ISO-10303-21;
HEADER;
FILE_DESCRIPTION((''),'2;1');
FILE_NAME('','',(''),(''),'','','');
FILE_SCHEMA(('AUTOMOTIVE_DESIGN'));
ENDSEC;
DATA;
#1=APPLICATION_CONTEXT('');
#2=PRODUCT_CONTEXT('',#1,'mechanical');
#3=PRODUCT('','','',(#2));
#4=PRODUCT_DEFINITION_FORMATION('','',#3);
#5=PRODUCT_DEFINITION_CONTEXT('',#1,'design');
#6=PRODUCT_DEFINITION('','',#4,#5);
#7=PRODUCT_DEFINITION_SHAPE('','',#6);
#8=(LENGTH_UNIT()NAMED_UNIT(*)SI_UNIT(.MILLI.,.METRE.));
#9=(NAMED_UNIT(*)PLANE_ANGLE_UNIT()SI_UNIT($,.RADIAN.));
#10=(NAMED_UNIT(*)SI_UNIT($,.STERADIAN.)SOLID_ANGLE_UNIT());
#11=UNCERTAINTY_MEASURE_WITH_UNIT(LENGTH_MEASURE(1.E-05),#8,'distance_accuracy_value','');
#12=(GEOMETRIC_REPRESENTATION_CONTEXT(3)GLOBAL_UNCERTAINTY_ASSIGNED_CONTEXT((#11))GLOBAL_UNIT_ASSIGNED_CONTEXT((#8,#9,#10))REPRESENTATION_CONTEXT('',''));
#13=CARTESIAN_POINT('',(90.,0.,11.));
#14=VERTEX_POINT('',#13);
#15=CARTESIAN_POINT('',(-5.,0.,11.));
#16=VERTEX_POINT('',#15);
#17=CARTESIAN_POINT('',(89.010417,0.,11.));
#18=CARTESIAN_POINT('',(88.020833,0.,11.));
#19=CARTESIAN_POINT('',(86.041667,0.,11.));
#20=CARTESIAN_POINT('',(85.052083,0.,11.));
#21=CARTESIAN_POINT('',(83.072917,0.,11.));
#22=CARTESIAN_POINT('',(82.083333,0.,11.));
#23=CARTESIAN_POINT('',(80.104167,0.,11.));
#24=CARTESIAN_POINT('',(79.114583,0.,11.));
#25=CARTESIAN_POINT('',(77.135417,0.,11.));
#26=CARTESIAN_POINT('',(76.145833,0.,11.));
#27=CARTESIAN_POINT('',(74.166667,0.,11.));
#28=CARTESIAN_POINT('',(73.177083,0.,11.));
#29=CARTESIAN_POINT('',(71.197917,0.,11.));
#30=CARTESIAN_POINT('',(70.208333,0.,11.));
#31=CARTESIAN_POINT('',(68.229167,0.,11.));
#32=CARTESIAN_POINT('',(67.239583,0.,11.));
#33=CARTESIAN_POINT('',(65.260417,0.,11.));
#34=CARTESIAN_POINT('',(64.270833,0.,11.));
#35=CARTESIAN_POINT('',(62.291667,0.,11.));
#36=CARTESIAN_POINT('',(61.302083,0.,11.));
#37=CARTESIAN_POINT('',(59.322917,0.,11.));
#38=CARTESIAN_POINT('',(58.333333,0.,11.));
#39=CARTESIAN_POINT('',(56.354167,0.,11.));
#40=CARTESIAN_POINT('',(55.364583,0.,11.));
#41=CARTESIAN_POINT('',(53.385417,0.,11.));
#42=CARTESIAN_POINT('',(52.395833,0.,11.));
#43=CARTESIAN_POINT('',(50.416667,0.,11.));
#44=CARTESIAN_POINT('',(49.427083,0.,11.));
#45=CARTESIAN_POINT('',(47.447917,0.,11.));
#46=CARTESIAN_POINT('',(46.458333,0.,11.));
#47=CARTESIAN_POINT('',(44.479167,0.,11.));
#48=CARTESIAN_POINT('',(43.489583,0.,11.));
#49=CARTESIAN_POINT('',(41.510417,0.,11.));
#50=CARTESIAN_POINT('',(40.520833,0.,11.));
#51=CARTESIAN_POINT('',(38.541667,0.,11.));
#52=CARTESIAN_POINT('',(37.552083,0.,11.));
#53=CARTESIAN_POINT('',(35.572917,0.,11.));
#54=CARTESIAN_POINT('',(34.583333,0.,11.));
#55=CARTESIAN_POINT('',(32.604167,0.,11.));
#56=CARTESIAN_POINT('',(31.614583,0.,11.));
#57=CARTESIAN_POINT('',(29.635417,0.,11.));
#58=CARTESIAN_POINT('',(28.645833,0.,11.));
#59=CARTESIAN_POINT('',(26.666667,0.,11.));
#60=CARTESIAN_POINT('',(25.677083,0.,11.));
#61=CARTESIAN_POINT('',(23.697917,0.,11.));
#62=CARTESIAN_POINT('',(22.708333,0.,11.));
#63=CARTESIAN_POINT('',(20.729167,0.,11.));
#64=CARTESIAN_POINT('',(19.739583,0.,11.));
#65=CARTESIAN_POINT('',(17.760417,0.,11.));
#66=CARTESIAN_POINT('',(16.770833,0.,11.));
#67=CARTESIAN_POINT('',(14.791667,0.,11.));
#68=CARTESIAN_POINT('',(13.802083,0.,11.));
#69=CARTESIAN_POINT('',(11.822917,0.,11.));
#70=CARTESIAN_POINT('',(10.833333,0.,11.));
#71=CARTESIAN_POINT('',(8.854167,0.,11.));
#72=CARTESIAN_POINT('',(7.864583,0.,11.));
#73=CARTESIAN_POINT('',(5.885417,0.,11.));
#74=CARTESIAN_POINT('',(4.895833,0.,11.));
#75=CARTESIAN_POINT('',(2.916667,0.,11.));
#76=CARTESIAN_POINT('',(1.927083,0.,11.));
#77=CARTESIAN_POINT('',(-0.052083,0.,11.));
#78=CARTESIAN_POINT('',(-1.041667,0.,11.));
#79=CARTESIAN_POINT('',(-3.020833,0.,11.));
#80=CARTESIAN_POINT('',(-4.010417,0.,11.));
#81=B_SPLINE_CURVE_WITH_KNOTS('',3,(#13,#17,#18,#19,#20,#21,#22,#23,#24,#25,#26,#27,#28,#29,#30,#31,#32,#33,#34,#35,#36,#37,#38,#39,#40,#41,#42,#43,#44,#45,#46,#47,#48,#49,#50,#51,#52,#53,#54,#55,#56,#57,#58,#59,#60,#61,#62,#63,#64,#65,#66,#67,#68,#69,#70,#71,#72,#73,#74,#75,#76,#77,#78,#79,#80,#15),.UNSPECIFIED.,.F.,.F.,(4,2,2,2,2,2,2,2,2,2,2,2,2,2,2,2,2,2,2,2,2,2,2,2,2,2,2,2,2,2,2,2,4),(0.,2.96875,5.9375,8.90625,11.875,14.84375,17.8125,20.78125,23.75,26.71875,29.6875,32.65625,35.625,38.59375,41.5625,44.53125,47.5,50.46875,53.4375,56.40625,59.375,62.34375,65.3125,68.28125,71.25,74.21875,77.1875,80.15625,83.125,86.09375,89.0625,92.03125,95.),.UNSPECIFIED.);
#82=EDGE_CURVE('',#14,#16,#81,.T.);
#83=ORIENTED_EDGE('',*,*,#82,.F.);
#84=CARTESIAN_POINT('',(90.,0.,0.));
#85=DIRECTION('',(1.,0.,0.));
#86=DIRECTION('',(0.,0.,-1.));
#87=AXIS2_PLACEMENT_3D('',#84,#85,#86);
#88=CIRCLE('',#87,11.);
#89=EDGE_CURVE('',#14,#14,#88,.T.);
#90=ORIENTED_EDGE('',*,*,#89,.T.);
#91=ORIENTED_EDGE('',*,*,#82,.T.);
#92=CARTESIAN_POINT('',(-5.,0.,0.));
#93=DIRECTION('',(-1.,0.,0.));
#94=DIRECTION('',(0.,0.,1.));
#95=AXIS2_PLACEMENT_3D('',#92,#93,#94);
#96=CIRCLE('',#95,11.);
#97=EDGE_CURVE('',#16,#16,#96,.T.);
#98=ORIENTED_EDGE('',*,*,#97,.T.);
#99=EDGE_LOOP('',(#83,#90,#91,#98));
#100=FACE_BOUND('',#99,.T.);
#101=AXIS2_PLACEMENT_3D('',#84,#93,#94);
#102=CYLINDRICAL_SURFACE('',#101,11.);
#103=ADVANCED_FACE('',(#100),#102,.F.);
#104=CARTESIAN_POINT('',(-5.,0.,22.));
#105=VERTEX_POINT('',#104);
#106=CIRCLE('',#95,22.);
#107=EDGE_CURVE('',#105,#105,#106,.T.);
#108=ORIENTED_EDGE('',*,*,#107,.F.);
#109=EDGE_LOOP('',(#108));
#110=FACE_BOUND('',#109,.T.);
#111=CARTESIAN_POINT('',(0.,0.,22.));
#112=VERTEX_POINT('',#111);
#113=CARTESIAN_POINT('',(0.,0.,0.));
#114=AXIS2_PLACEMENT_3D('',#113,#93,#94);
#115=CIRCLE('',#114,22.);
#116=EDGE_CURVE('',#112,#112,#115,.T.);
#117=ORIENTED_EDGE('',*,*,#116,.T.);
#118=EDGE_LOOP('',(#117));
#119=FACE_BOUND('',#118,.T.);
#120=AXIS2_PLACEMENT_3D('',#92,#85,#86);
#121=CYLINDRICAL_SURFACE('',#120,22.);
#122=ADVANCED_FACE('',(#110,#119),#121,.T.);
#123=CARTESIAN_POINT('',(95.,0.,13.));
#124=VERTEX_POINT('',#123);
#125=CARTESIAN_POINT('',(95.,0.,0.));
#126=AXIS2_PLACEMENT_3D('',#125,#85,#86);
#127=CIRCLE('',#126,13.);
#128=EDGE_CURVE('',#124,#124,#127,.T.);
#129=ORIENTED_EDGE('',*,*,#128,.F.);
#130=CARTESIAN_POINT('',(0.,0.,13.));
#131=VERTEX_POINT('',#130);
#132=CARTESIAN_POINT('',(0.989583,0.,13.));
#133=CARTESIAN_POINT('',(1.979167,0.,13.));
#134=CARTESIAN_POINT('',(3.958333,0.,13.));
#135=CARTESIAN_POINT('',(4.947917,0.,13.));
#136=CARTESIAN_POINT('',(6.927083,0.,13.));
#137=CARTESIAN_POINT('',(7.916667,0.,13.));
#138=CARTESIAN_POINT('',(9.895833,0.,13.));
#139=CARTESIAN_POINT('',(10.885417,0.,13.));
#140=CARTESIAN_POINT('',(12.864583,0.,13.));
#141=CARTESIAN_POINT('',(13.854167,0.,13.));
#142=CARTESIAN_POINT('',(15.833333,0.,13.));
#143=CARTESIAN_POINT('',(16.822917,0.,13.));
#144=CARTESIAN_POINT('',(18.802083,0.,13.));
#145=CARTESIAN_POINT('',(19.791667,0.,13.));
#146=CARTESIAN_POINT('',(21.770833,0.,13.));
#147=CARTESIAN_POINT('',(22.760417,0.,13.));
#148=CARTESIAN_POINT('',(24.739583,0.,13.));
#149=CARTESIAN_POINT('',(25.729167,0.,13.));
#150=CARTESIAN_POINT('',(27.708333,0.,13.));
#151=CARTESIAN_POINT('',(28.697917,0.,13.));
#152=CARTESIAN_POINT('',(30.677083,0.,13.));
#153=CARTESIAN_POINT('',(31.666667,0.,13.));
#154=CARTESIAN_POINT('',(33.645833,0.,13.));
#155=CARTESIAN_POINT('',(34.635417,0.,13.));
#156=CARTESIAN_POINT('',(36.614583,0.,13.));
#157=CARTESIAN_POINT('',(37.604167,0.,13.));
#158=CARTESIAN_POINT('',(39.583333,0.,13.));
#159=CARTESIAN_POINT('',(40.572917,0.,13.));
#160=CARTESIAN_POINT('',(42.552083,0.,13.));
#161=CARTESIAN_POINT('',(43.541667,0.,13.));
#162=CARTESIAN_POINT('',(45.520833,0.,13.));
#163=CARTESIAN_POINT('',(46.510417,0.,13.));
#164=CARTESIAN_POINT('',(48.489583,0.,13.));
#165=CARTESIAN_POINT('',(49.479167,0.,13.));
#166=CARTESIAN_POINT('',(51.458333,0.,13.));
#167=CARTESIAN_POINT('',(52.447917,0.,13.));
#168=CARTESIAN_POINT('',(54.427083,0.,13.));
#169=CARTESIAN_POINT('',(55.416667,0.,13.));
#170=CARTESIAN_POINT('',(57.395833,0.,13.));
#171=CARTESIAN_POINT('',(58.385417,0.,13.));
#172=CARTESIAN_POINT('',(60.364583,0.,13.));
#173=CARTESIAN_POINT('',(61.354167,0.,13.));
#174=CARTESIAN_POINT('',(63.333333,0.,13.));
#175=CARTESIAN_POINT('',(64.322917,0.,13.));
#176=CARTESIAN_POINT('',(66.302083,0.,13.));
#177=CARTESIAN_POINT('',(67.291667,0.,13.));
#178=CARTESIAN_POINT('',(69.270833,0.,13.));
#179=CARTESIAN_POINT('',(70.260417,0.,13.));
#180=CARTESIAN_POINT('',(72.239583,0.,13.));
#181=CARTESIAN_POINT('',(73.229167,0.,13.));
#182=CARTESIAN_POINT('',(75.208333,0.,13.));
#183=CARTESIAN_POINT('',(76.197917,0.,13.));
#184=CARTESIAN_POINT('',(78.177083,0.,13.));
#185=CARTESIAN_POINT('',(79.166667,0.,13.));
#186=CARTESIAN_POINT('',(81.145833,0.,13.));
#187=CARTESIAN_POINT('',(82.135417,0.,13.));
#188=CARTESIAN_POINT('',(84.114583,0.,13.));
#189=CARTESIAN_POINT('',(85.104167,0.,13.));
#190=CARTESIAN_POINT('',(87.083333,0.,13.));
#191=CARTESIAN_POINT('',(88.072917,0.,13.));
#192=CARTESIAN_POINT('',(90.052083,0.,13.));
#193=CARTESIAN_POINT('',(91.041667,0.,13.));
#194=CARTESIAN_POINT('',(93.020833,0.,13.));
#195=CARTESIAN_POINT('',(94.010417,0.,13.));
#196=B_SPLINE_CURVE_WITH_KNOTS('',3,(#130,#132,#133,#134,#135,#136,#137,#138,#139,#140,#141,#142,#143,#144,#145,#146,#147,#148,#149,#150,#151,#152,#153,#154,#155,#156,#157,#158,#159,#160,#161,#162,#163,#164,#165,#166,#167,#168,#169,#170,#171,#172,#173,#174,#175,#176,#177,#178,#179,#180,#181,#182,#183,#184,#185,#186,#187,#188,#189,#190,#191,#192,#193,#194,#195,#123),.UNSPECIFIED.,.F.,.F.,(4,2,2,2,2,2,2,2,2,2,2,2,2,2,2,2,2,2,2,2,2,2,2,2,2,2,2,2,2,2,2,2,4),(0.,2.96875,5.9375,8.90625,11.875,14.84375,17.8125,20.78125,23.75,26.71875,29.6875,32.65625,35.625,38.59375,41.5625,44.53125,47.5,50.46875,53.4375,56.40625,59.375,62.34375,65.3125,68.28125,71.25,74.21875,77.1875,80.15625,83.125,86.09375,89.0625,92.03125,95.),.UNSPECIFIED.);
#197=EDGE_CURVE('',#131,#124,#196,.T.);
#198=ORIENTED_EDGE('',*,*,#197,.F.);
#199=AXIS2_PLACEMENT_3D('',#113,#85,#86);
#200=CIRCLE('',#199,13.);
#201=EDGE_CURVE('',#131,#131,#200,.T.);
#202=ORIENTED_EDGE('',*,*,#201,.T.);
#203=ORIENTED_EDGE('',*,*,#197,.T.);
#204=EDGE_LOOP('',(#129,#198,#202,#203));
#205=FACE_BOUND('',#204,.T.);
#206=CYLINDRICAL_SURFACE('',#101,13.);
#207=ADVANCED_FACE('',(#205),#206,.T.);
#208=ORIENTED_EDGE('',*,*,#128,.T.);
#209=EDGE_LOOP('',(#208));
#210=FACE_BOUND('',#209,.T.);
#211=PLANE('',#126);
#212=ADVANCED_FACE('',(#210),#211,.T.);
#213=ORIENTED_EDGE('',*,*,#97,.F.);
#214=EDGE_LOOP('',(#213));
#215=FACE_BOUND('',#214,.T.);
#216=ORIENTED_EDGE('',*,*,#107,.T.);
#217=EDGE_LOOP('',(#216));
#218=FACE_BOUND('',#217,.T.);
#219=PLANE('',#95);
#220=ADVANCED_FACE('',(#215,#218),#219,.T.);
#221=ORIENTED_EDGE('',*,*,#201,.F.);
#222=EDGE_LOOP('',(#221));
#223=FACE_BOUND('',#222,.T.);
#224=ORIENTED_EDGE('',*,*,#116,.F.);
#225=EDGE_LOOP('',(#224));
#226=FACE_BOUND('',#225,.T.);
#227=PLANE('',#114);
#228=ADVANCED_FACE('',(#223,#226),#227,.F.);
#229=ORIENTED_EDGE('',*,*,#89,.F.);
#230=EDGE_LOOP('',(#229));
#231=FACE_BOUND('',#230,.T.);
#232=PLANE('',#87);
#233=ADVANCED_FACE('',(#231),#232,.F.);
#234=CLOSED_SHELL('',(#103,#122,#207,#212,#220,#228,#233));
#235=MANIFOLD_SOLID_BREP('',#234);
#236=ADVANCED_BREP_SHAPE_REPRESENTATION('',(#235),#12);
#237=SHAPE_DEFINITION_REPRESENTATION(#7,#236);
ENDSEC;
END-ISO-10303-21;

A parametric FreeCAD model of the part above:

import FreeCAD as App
import Part
import Sketcher
from FreeCAD import Vector
Q = App.Units.Quantity

doc = App.newDocument("Part")
body = doc.addObject("PartDesign::Body", "Body")

sketch1 = body.newObject("Sketcher::SketchObject", "Sketch")
sketch1.AttachmentSupport = (doc.getObject("YZ_Plane"), [""])
sketch1.MapMode = "FlatFace"
sketch1.addGeometry([
    Part.Circle(Vector(0, 0, 0), Vector(0, 0, 1), 13),
    Part.Circle(Vector(0, 0, 0), Vector(0, 0, 1), 11),
], False)
sketch1.addConstraint([
    Sketcher.Constraint("Coincident", 0, 3, -1, 1),
    Sketcher.Constraint("Coincident", 1, 3, -1, 1),
    Sketcher.Constraint("Diameter", 0, Q("26 mm")),
    Sketcher.Constraint("Diameter", 1, Q("22 mm")),
])
pad1 = body.newObject("PartDesign::Pad", "Pad")
pad1.Profile = sketch1
pad1.Length = 90

sketch2 = body.newObject("Sketcher::SketchObject", "Sketch001")
sketch2.AttachmentSupport = (doc.getObject("YZ_Plane"), [""])
sketch2.MapMode = "FlatFace"
sketch2.AttachmentOffset = App.Placement(Vector(0, 0, 90), App.Rotation())
sketch2.addGeometry(Part.Circle(Vector(0, 0, 0), Vector(0, 0, 1), 13), False)
sketch2.addConstraint([
    Sketcher.Constraint("Coincident", 0, 3, -1, 1),
    Sketcher.Constraint("Diameter", 0, Q("26 mm")),
])
pad2 = body.newObject("PartDesign::Pad", "Pad001")
pad2.Profile = sketch2
pad2.Length = 5

sketch3 = body.newObject("Sketcher::SketchObject", "Sketch002")
sketch3.AttachmentSupport = (doc.getObject("YZ_Plane"), [""])
sketch3.MapMode = "FlatFace"
sketch3.AttachmentOffset = App.Placement(Vector(0, 0, -5), App.Rotation())
sketch3.addGeometry([
    Part.Circle(Vector(0, 0, 0), Vector(0, 0, 1), 22),
    Part.Circle(Vector(0, 0, 0), Vector(0, 0, 1), 11),
], False)
sketch3.addConstraint([
    Sketcher.Constraint("Coincident", 0, 3, -1, 1),
    Sketcher.Constraint("Coincident", 1, 3, -1, 1),
    Sketcher.Constraint("Diameter", 0, Q("44 mm")),
    Sketcher.Constraint("Diameter", 1, Q("22 mm")),
])
pad3 = body.newObject("PartDesign::Pad", "Pad002")
pad3.Profile = sketch3
pad3.Length = 5

doc.recompute()
